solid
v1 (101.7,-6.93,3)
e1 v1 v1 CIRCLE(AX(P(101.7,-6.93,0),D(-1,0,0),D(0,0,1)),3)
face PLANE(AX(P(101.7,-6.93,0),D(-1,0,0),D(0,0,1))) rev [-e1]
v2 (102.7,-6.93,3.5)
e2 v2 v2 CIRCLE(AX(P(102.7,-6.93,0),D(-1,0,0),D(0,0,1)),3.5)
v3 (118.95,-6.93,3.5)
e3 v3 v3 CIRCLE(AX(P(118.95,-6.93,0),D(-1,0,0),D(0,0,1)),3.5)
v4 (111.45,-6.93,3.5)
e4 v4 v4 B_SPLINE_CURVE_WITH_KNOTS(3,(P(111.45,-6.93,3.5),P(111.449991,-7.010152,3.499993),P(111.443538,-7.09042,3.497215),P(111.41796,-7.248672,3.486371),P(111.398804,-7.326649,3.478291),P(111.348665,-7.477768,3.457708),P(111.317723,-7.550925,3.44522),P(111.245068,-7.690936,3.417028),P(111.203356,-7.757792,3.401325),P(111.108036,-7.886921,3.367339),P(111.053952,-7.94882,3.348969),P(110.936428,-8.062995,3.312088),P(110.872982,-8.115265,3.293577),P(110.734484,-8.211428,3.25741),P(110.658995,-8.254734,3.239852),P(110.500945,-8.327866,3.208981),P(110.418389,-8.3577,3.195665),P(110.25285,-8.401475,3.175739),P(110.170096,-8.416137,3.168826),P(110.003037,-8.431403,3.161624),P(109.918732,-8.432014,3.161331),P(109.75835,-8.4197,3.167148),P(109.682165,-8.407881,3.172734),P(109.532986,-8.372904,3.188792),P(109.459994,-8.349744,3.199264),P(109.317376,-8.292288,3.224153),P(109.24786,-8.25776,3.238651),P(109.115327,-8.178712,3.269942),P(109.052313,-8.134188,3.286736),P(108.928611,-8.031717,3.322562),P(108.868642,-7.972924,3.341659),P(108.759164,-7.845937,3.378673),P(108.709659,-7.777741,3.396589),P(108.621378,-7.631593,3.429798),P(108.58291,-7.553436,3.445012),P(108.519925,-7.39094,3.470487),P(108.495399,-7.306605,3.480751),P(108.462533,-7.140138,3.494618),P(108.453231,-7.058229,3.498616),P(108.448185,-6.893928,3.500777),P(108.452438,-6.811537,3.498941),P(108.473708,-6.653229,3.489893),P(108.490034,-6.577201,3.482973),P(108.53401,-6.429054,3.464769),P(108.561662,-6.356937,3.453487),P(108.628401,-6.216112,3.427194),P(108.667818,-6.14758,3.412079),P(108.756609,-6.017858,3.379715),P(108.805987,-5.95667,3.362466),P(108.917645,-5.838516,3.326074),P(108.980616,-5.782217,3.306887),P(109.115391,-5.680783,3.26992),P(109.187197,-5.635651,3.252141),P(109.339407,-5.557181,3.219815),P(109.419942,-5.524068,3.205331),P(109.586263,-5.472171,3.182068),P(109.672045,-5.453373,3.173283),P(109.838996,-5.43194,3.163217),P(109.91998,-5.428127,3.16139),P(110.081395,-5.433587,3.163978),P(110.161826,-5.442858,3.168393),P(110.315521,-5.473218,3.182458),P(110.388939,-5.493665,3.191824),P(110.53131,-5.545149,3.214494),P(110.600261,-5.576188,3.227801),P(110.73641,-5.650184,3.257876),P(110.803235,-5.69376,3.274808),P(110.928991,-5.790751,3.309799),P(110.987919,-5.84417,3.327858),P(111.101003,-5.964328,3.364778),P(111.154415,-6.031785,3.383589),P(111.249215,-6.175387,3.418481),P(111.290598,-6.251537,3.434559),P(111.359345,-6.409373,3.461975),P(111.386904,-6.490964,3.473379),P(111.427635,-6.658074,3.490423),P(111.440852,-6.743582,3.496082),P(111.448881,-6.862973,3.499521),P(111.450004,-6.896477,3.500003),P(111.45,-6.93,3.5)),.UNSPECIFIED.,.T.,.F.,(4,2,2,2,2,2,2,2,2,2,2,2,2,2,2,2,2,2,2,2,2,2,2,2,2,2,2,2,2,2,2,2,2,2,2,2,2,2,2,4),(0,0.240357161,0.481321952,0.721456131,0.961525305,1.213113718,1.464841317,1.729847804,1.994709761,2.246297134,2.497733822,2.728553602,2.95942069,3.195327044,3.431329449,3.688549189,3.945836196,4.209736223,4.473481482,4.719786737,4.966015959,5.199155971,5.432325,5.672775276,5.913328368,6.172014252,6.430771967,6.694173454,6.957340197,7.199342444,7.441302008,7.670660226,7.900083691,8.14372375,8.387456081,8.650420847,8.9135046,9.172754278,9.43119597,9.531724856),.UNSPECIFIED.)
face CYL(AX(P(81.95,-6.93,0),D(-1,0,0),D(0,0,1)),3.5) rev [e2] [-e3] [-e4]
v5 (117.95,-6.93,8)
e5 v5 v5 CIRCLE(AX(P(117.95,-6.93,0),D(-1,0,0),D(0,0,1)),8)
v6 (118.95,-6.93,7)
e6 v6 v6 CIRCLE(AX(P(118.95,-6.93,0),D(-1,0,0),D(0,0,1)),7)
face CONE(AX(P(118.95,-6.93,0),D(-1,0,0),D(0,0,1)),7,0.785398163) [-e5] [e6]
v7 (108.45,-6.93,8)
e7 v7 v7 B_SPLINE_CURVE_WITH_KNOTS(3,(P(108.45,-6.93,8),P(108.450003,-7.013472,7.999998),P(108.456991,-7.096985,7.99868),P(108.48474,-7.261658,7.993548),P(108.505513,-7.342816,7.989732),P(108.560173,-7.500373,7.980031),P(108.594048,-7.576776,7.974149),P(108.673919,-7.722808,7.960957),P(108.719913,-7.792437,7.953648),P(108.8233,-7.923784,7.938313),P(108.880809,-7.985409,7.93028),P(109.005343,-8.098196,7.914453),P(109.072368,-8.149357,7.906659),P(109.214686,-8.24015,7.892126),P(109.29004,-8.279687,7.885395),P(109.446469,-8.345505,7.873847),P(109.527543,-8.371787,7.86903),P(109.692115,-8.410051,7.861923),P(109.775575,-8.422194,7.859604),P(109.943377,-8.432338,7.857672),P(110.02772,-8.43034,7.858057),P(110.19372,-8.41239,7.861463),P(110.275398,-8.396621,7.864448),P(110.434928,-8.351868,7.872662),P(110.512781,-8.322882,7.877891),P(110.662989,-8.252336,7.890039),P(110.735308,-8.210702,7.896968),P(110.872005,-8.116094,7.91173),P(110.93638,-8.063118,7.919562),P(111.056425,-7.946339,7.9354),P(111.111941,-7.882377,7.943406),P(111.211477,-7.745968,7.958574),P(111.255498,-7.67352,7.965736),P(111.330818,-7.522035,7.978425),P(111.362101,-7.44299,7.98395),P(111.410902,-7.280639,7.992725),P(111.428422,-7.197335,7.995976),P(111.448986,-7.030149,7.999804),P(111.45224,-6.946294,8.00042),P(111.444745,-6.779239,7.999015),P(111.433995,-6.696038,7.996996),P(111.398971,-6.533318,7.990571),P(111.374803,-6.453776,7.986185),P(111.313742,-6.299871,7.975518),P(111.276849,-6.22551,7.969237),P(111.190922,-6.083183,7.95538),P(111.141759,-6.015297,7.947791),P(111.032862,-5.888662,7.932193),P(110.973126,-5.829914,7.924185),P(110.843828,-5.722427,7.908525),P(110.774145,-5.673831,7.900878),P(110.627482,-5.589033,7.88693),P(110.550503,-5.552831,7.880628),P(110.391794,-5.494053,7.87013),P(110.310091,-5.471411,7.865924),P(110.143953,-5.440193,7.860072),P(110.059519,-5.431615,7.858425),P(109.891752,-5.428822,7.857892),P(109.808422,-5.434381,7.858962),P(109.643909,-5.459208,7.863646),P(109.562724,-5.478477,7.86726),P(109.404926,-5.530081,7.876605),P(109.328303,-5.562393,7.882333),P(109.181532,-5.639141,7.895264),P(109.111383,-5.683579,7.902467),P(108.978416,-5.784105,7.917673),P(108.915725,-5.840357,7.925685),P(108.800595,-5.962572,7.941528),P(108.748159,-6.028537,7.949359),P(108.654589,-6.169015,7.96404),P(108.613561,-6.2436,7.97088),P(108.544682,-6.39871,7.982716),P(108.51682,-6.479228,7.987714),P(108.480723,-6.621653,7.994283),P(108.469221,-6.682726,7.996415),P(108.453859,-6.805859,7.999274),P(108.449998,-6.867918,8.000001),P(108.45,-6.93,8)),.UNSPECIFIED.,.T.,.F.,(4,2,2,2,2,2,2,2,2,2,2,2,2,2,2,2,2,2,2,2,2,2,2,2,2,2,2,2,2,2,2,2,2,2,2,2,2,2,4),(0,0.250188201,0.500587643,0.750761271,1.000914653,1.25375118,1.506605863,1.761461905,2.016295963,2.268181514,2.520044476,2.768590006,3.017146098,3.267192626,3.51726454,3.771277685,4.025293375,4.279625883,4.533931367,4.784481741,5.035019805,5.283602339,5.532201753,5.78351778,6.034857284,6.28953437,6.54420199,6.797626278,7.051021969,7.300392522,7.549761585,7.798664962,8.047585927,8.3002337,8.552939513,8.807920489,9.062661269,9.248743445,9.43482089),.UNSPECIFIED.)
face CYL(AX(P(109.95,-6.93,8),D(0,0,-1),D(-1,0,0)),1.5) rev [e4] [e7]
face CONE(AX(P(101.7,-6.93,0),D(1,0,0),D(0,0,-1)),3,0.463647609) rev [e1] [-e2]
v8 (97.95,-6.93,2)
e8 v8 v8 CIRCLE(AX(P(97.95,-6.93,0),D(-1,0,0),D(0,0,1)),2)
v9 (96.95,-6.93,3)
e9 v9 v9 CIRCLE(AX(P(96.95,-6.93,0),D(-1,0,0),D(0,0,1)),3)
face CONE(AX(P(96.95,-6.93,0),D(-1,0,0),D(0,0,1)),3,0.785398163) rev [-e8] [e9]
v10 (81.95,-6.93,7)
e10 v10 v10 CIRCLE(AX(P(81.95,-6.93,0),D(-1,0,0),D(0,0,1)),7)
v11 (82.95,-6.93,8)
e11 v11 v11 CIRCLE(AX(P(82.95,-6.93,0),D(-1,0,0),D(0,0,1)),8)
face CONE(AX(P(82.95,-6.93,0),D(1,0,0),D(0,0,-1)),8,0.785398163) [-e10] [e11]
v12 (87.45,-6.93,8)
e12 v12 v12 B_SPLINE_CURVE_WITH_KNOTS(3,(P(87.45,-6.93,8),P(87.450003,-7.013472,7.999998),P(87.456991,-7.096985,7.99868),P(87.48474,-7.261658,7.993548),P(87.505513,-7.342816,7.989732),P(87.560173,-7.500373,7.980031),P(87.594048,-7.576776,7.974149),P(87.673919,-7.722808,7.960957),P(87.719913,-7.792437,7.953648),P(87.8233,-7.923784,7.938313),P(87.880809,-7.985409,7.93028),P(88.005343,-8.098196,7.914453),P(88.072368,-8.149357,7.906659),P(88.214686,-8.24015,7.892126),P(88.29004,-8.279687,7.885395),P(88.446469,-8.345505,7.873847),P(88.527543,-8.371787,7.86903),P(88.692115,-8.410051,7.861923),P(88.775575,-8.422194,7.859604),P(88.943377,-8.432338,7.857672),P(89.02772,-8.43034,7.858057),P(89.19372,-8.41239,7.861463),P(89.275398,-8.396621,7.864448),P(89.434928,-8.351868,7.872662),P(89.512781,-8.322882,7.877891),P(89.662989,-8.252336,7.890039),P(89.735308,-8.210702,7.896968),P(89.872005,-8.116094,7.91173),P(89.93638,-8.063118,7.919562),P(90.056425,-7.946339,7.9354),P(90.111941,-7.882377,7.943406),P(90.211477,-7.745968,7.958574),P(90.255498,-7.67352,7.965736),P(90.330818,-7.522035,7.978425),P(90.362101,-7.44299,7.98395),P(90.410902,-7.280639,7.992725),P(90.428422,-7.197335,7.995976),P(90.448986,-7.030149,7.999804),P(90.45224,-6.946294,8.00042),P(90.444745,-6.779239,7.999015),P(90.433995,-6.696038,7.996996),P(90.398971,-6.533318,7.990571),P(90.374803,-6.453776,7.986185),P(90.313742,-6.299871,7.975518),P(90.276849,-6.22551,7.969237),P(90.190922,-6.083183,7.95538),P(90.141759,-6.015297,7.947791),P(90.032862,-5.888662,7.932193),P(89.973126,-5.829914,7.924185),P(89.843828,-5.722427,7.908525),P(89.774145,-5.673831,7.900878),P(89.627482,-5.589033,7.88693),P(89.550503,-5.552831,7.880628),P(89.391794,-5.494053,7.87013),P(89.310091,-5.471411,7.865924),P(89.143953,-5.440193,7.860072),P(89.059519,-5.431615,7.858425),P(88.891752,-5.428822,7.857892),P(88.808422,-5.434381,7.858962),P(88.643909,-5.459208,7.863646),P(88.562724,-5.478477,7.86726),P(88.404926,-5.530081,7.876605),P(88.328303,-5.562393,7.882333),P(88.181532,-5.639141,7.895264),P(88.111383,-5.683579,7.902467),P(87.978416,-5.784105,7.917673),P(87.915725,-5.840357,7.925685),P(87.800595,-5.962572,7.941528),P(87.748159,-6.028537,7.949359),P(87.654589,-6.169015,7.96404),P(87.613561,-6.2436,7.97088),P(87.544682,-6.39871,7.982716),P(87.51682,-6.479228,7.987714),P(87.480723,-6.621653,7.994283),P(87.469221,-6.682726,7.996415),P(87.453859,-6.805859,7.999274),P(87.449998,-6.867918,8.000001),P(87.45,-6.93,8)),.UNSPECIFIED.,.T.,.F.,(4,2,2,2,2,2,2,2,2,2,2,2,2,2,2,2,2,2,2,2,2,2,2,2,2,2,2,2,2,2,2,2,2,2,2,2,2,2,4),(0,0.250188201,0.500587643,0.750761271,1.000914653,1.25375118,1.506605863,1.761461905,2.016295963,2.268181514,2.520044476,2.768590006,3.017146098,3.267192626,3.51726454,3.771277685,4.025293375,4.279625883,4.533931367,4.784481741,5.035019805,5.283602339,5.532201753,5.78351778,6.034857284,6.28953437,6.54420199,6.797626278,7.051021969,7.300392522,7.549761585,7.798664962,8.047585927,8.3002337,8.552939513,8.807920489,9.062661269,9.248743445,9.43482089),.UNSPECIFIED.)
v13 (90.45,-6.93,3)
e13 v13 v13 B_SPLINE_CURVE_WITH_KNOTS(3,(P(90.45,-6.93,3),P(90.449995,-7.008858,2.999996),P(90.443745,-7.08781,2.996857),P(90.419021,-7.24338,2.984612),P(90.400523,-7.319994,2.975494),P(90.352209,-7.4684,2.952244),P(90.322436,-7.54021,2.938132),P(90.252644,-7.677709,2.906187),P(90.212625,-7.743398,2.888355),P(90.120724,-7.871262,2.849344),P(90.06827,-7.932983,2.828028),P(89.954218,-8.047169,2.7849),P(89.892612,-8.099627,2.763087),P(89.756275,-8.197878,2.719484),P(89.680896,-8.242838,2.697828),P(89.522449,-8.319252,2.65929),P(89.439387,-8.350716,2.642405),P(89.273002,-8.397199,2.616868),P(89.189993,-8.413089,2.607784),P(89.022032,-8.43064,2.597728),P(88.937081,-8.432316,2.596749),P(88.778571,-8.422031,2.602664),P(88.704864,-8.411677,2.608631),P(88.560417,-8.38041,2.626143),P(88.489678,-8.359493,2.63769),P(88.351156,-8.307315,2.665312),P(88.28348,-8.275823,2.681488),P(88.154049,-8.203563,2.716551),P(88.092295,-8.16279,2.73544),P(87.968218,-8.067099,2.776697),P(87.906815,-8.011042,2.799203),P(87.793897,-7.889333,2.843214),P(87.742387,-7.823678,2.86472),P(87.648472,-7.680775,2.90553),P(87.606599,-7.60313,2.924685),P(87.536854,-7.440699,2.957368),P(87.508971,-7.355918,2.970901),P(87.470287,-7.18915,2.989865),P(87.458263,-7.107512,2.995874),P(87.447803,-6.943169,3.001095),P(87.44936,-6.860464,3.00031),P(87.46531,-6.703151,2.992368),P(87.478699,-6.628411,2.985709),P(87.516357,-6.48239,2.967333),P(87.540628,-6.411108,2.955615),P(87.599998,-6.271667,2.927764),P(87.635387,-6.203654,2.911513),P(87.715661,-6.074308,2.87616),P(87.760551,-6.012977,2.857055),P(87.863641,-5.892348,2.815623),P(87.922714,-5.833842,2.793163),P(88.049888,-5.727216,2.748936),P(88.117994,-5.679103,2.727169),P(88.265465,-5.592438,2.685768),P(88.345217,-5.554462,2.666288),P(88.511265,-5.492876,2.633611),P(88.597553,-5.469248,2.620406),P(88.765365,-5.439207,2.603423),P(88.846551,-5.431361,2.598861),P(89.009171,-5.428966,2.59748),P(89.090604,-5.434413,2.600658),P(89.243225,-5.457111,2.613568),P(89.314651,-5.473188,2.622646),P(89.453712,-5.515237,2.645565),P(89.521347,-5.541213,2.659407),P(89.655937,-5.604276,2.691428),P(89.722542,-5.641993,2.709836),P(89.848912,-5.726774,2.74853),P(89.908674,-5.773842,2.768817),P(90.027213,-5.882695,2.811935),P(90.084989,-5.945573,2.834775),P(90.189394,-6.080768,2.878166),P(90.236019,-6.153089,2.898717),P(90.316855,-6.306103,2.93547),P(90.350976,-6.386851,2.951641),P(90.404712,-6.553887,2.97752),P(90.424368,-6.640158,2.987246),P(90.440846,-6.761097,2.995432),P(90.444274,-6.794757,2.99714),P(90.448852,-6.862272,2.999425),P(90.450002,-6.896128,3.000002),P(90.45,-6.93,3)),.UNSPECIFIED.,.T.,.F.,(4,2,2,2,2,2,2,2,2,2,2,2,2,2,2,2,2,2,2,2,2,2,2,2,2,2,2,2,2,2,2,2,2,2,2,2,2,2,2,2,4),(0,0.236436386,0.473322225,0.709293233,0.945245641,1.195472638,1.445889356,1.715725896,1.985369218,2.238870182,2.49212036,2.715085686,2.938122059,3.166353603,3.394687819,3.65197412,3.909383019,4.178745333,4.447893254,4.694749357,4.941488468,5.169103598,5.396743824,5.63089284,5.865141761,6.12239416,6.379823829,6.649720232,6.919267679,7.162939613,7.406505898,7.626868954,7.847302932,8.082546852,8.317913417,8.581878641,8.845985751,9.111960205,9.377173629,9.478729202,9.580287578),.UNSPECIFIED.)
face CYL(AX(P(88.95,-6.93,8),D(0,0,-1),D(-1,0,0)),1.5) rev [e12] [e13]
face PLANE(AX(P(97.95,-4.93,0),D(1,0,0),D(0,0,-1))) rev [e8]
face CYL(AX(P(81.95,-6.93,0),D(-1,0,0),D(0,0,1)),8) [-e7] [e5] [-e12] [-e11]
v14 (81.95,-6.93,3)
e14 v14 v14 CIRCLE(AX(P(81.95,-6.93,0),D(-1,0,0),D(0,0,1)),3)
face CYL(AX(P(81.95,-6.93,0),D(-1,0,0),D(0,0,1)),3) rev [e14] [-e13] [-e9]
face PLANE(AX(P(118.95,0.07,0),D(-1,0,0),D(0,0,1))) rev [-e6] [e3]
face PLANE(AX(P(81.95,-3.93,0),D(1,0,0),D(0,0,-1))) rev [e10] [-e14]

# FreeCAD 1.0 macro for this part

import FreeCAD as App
import Part
import Sketcher

V = App.Vector
Q = App.Units.Quantity


def add_polygon(sketch, points):
    """Adds a closed chain of lines whose ends are joined by coincident constraints."""
    first, n = sketch.GeometryCount, len(points)
    for a, b in zip(points, points[1:] + points[:1]):
        sketch.addGeometry(Part.LineSegment(App.Vector(*a, 0), App.Vector(*b, 0)), False)
    for i in range(n):
        sketch.addConstraint(Sketcher.Constraint("Coincident", first + i, 2, first + (i + 1) % n, 1))

doc = App.newDocument("Part")
body = doc.addObject("PartDesign::Body", "Body")

# Sketch on XY plane
sketch1 = body.newObject("Sketcher::SketchObject", "Sketch")
sketch1.AttachmentSupport = (doc.getObject("XY_Plane"), [""])
sketch1.MapMode = "FlatFace"
add_polygon(sketch1, [(81.95, 0.07), (81.95, -3.93), (96.95, -3.93), (97.95, -4.93), (97.95, -6.93), (101.7, -6.93), (101.7, -3.93), (102.7, -3.43), (118.95, -3.43), (118.95, 0.07), (117.95, 1.07), (82.95, 1.07)])  # lines 0-11
sketch1.addGeometry(Part.LineSegment(V(81.95, -6.93, 0), V(118.95, -6.93, 0)), True)  # axis
sketch1.addConstraint(Sketcher.Constraint("Vertical", 0))
sketch1.addConstraint(Sketcher.Constraint("Horizontal", 1))
sketch1.addConstraint(Sketcher.Constraint("Vertical", 3))
sketch1.addConstraint(Sketcher.Constraint("Horizontal", 4))
sketch1.addConstraint(Sketcher.Constraint("Vertical", 5))
sketch1.addConstraint(Sketcher.Constraint("Horizontal", 7))
sketch1.addConstraint(Sketcher.Constraint("Vertical", 8))
sketch1.addConstraint(Sketcher.Constraint("Horizontal", 10))
sketch1.addConstraint(Sketcher.Constraint("Horizontal", 12))
sketch1.addConstraint(Sketcher.Constraint("Parallel", 2, 9))
sketch1.addConstraint(Sketcher.Constraint("Perpendicular", 9, 11))
sketch1.addConstraint(Sketcher.Constraint("Horizontal", 1, 2, 5, 2))
sketch1.addConstraint(Sketcher.Constraint("Horizontal", 8, 2, 11, 2))
sketch1.addConstraint(Sketcher.Constraint("Horizontal", 4, 2, 12, 1))
sketch1.addConstraint(Sketcher.Constraint("Vertical", 11, 2, 12, 1))
sketch1.addConstraint(Sketcher.Constraint("Vertical", 8, 2, 12, 2))
sketch1.addConstraint(Sketcher.Constraint("Equal", 2, 9))
sketch1.addConstraint(Sketcher.Constraint("Equal", 9, 11))
sketch1.addConstraint(Sketcher.Constraint("DistanceX", 1, 1, 1, 2, Q("15 mm")))
sketch1.addConstraint(Sketcher.Constraint("DistanceX", 10, 2, 10, 1, Q("35 mm")))
sketch1.addConstraint(Sketcher.Constraint("DistanceX", 12, 1, 12, 2, Q("37 mm")))
sketch1.addConstraint(Sketcher.Constraint("DistanceY", 0, 2, 0, 1, Q("4 mm")))
sketch1.addConstraint(Sketcher.Constraint("DistanceY", 3, 2, 3, 1, Q("2 mm")))
sketch1.addConstraint(Sketcher.Constraint("DistanceY", 8, 1, 8, 2, Q("3.5 mm")))
sketch1.addConstraint(Sketcher.Constraint("DistanceX", 5, 2, 6, 2, Q("1 mm")))
sketch1.addConstraint(Sketcher.Constraint("DistanceX", 4, 1, 4, 2, Q("3.75 mm")))
sketch1.addConstraint(Sketcher.Constraint("DistanceX", -1, 1, 4, 2, Q("101.7 mm")))
sketch1.addConstraint(Sketcher.Constraint("DistanceY", 0, 2, -1, 1, Q("3.93 mm")))
revolution = body.newObject("PartDesign::Revolution", "Revolution")
revolution.Profile = sketch1
revolution.ReferenceAxis = (sketch1, ["Axis0"])
revolution.Angle = 360

# Sketch on XY plane
sketch2 = body.newObject("Sketcher::SketchObject", "Sketch001")
sketch2.AttachmentSupport = (doc.getObject("XY_Plane"), [""])
sketch2.MapMode = "FlatFace"
sketch2.addGeometry(Part.Circle(V(88.95, -6.93, 0), V(0, 0, 1), 1.5), False)
sketch2.addGeometry(Part.Circle(V(109.95, -6.93, 0), V(0, 0, 1), 1.5), False)
sketch2.addConstraint(Sketcher.Constraint("Equal", 0, 1))
sketch2.addConstraint(Sketcher.Constraint("Horizontal", 0, 3, 1, 3))
sketch2.addConstraint(Sketcher.Constraint("Diameter", 0, Q("3 mm")))
sketch2.addConstraint(Sketcher.Constraint("DistanceX", 0, 3, 1, 3, Q("21 mm")))
sketch2.addConstraint(Sketcher.Constraint("DistanceX", -1, 1, 0, 3, Q("88.95 mm")))
sketch2.addConstraint(Sketcher.Constraint("DistanceY", 0, 3, -1, 1, Q("6.93 mm")))
pocket1 = body.newObject("PartDesign::Pocket", "Pocket")
pocket1.Profile = sketch2
pocket1.Type = "ThroughAll"
pocket1.Reversed = True

doc.recompute()
